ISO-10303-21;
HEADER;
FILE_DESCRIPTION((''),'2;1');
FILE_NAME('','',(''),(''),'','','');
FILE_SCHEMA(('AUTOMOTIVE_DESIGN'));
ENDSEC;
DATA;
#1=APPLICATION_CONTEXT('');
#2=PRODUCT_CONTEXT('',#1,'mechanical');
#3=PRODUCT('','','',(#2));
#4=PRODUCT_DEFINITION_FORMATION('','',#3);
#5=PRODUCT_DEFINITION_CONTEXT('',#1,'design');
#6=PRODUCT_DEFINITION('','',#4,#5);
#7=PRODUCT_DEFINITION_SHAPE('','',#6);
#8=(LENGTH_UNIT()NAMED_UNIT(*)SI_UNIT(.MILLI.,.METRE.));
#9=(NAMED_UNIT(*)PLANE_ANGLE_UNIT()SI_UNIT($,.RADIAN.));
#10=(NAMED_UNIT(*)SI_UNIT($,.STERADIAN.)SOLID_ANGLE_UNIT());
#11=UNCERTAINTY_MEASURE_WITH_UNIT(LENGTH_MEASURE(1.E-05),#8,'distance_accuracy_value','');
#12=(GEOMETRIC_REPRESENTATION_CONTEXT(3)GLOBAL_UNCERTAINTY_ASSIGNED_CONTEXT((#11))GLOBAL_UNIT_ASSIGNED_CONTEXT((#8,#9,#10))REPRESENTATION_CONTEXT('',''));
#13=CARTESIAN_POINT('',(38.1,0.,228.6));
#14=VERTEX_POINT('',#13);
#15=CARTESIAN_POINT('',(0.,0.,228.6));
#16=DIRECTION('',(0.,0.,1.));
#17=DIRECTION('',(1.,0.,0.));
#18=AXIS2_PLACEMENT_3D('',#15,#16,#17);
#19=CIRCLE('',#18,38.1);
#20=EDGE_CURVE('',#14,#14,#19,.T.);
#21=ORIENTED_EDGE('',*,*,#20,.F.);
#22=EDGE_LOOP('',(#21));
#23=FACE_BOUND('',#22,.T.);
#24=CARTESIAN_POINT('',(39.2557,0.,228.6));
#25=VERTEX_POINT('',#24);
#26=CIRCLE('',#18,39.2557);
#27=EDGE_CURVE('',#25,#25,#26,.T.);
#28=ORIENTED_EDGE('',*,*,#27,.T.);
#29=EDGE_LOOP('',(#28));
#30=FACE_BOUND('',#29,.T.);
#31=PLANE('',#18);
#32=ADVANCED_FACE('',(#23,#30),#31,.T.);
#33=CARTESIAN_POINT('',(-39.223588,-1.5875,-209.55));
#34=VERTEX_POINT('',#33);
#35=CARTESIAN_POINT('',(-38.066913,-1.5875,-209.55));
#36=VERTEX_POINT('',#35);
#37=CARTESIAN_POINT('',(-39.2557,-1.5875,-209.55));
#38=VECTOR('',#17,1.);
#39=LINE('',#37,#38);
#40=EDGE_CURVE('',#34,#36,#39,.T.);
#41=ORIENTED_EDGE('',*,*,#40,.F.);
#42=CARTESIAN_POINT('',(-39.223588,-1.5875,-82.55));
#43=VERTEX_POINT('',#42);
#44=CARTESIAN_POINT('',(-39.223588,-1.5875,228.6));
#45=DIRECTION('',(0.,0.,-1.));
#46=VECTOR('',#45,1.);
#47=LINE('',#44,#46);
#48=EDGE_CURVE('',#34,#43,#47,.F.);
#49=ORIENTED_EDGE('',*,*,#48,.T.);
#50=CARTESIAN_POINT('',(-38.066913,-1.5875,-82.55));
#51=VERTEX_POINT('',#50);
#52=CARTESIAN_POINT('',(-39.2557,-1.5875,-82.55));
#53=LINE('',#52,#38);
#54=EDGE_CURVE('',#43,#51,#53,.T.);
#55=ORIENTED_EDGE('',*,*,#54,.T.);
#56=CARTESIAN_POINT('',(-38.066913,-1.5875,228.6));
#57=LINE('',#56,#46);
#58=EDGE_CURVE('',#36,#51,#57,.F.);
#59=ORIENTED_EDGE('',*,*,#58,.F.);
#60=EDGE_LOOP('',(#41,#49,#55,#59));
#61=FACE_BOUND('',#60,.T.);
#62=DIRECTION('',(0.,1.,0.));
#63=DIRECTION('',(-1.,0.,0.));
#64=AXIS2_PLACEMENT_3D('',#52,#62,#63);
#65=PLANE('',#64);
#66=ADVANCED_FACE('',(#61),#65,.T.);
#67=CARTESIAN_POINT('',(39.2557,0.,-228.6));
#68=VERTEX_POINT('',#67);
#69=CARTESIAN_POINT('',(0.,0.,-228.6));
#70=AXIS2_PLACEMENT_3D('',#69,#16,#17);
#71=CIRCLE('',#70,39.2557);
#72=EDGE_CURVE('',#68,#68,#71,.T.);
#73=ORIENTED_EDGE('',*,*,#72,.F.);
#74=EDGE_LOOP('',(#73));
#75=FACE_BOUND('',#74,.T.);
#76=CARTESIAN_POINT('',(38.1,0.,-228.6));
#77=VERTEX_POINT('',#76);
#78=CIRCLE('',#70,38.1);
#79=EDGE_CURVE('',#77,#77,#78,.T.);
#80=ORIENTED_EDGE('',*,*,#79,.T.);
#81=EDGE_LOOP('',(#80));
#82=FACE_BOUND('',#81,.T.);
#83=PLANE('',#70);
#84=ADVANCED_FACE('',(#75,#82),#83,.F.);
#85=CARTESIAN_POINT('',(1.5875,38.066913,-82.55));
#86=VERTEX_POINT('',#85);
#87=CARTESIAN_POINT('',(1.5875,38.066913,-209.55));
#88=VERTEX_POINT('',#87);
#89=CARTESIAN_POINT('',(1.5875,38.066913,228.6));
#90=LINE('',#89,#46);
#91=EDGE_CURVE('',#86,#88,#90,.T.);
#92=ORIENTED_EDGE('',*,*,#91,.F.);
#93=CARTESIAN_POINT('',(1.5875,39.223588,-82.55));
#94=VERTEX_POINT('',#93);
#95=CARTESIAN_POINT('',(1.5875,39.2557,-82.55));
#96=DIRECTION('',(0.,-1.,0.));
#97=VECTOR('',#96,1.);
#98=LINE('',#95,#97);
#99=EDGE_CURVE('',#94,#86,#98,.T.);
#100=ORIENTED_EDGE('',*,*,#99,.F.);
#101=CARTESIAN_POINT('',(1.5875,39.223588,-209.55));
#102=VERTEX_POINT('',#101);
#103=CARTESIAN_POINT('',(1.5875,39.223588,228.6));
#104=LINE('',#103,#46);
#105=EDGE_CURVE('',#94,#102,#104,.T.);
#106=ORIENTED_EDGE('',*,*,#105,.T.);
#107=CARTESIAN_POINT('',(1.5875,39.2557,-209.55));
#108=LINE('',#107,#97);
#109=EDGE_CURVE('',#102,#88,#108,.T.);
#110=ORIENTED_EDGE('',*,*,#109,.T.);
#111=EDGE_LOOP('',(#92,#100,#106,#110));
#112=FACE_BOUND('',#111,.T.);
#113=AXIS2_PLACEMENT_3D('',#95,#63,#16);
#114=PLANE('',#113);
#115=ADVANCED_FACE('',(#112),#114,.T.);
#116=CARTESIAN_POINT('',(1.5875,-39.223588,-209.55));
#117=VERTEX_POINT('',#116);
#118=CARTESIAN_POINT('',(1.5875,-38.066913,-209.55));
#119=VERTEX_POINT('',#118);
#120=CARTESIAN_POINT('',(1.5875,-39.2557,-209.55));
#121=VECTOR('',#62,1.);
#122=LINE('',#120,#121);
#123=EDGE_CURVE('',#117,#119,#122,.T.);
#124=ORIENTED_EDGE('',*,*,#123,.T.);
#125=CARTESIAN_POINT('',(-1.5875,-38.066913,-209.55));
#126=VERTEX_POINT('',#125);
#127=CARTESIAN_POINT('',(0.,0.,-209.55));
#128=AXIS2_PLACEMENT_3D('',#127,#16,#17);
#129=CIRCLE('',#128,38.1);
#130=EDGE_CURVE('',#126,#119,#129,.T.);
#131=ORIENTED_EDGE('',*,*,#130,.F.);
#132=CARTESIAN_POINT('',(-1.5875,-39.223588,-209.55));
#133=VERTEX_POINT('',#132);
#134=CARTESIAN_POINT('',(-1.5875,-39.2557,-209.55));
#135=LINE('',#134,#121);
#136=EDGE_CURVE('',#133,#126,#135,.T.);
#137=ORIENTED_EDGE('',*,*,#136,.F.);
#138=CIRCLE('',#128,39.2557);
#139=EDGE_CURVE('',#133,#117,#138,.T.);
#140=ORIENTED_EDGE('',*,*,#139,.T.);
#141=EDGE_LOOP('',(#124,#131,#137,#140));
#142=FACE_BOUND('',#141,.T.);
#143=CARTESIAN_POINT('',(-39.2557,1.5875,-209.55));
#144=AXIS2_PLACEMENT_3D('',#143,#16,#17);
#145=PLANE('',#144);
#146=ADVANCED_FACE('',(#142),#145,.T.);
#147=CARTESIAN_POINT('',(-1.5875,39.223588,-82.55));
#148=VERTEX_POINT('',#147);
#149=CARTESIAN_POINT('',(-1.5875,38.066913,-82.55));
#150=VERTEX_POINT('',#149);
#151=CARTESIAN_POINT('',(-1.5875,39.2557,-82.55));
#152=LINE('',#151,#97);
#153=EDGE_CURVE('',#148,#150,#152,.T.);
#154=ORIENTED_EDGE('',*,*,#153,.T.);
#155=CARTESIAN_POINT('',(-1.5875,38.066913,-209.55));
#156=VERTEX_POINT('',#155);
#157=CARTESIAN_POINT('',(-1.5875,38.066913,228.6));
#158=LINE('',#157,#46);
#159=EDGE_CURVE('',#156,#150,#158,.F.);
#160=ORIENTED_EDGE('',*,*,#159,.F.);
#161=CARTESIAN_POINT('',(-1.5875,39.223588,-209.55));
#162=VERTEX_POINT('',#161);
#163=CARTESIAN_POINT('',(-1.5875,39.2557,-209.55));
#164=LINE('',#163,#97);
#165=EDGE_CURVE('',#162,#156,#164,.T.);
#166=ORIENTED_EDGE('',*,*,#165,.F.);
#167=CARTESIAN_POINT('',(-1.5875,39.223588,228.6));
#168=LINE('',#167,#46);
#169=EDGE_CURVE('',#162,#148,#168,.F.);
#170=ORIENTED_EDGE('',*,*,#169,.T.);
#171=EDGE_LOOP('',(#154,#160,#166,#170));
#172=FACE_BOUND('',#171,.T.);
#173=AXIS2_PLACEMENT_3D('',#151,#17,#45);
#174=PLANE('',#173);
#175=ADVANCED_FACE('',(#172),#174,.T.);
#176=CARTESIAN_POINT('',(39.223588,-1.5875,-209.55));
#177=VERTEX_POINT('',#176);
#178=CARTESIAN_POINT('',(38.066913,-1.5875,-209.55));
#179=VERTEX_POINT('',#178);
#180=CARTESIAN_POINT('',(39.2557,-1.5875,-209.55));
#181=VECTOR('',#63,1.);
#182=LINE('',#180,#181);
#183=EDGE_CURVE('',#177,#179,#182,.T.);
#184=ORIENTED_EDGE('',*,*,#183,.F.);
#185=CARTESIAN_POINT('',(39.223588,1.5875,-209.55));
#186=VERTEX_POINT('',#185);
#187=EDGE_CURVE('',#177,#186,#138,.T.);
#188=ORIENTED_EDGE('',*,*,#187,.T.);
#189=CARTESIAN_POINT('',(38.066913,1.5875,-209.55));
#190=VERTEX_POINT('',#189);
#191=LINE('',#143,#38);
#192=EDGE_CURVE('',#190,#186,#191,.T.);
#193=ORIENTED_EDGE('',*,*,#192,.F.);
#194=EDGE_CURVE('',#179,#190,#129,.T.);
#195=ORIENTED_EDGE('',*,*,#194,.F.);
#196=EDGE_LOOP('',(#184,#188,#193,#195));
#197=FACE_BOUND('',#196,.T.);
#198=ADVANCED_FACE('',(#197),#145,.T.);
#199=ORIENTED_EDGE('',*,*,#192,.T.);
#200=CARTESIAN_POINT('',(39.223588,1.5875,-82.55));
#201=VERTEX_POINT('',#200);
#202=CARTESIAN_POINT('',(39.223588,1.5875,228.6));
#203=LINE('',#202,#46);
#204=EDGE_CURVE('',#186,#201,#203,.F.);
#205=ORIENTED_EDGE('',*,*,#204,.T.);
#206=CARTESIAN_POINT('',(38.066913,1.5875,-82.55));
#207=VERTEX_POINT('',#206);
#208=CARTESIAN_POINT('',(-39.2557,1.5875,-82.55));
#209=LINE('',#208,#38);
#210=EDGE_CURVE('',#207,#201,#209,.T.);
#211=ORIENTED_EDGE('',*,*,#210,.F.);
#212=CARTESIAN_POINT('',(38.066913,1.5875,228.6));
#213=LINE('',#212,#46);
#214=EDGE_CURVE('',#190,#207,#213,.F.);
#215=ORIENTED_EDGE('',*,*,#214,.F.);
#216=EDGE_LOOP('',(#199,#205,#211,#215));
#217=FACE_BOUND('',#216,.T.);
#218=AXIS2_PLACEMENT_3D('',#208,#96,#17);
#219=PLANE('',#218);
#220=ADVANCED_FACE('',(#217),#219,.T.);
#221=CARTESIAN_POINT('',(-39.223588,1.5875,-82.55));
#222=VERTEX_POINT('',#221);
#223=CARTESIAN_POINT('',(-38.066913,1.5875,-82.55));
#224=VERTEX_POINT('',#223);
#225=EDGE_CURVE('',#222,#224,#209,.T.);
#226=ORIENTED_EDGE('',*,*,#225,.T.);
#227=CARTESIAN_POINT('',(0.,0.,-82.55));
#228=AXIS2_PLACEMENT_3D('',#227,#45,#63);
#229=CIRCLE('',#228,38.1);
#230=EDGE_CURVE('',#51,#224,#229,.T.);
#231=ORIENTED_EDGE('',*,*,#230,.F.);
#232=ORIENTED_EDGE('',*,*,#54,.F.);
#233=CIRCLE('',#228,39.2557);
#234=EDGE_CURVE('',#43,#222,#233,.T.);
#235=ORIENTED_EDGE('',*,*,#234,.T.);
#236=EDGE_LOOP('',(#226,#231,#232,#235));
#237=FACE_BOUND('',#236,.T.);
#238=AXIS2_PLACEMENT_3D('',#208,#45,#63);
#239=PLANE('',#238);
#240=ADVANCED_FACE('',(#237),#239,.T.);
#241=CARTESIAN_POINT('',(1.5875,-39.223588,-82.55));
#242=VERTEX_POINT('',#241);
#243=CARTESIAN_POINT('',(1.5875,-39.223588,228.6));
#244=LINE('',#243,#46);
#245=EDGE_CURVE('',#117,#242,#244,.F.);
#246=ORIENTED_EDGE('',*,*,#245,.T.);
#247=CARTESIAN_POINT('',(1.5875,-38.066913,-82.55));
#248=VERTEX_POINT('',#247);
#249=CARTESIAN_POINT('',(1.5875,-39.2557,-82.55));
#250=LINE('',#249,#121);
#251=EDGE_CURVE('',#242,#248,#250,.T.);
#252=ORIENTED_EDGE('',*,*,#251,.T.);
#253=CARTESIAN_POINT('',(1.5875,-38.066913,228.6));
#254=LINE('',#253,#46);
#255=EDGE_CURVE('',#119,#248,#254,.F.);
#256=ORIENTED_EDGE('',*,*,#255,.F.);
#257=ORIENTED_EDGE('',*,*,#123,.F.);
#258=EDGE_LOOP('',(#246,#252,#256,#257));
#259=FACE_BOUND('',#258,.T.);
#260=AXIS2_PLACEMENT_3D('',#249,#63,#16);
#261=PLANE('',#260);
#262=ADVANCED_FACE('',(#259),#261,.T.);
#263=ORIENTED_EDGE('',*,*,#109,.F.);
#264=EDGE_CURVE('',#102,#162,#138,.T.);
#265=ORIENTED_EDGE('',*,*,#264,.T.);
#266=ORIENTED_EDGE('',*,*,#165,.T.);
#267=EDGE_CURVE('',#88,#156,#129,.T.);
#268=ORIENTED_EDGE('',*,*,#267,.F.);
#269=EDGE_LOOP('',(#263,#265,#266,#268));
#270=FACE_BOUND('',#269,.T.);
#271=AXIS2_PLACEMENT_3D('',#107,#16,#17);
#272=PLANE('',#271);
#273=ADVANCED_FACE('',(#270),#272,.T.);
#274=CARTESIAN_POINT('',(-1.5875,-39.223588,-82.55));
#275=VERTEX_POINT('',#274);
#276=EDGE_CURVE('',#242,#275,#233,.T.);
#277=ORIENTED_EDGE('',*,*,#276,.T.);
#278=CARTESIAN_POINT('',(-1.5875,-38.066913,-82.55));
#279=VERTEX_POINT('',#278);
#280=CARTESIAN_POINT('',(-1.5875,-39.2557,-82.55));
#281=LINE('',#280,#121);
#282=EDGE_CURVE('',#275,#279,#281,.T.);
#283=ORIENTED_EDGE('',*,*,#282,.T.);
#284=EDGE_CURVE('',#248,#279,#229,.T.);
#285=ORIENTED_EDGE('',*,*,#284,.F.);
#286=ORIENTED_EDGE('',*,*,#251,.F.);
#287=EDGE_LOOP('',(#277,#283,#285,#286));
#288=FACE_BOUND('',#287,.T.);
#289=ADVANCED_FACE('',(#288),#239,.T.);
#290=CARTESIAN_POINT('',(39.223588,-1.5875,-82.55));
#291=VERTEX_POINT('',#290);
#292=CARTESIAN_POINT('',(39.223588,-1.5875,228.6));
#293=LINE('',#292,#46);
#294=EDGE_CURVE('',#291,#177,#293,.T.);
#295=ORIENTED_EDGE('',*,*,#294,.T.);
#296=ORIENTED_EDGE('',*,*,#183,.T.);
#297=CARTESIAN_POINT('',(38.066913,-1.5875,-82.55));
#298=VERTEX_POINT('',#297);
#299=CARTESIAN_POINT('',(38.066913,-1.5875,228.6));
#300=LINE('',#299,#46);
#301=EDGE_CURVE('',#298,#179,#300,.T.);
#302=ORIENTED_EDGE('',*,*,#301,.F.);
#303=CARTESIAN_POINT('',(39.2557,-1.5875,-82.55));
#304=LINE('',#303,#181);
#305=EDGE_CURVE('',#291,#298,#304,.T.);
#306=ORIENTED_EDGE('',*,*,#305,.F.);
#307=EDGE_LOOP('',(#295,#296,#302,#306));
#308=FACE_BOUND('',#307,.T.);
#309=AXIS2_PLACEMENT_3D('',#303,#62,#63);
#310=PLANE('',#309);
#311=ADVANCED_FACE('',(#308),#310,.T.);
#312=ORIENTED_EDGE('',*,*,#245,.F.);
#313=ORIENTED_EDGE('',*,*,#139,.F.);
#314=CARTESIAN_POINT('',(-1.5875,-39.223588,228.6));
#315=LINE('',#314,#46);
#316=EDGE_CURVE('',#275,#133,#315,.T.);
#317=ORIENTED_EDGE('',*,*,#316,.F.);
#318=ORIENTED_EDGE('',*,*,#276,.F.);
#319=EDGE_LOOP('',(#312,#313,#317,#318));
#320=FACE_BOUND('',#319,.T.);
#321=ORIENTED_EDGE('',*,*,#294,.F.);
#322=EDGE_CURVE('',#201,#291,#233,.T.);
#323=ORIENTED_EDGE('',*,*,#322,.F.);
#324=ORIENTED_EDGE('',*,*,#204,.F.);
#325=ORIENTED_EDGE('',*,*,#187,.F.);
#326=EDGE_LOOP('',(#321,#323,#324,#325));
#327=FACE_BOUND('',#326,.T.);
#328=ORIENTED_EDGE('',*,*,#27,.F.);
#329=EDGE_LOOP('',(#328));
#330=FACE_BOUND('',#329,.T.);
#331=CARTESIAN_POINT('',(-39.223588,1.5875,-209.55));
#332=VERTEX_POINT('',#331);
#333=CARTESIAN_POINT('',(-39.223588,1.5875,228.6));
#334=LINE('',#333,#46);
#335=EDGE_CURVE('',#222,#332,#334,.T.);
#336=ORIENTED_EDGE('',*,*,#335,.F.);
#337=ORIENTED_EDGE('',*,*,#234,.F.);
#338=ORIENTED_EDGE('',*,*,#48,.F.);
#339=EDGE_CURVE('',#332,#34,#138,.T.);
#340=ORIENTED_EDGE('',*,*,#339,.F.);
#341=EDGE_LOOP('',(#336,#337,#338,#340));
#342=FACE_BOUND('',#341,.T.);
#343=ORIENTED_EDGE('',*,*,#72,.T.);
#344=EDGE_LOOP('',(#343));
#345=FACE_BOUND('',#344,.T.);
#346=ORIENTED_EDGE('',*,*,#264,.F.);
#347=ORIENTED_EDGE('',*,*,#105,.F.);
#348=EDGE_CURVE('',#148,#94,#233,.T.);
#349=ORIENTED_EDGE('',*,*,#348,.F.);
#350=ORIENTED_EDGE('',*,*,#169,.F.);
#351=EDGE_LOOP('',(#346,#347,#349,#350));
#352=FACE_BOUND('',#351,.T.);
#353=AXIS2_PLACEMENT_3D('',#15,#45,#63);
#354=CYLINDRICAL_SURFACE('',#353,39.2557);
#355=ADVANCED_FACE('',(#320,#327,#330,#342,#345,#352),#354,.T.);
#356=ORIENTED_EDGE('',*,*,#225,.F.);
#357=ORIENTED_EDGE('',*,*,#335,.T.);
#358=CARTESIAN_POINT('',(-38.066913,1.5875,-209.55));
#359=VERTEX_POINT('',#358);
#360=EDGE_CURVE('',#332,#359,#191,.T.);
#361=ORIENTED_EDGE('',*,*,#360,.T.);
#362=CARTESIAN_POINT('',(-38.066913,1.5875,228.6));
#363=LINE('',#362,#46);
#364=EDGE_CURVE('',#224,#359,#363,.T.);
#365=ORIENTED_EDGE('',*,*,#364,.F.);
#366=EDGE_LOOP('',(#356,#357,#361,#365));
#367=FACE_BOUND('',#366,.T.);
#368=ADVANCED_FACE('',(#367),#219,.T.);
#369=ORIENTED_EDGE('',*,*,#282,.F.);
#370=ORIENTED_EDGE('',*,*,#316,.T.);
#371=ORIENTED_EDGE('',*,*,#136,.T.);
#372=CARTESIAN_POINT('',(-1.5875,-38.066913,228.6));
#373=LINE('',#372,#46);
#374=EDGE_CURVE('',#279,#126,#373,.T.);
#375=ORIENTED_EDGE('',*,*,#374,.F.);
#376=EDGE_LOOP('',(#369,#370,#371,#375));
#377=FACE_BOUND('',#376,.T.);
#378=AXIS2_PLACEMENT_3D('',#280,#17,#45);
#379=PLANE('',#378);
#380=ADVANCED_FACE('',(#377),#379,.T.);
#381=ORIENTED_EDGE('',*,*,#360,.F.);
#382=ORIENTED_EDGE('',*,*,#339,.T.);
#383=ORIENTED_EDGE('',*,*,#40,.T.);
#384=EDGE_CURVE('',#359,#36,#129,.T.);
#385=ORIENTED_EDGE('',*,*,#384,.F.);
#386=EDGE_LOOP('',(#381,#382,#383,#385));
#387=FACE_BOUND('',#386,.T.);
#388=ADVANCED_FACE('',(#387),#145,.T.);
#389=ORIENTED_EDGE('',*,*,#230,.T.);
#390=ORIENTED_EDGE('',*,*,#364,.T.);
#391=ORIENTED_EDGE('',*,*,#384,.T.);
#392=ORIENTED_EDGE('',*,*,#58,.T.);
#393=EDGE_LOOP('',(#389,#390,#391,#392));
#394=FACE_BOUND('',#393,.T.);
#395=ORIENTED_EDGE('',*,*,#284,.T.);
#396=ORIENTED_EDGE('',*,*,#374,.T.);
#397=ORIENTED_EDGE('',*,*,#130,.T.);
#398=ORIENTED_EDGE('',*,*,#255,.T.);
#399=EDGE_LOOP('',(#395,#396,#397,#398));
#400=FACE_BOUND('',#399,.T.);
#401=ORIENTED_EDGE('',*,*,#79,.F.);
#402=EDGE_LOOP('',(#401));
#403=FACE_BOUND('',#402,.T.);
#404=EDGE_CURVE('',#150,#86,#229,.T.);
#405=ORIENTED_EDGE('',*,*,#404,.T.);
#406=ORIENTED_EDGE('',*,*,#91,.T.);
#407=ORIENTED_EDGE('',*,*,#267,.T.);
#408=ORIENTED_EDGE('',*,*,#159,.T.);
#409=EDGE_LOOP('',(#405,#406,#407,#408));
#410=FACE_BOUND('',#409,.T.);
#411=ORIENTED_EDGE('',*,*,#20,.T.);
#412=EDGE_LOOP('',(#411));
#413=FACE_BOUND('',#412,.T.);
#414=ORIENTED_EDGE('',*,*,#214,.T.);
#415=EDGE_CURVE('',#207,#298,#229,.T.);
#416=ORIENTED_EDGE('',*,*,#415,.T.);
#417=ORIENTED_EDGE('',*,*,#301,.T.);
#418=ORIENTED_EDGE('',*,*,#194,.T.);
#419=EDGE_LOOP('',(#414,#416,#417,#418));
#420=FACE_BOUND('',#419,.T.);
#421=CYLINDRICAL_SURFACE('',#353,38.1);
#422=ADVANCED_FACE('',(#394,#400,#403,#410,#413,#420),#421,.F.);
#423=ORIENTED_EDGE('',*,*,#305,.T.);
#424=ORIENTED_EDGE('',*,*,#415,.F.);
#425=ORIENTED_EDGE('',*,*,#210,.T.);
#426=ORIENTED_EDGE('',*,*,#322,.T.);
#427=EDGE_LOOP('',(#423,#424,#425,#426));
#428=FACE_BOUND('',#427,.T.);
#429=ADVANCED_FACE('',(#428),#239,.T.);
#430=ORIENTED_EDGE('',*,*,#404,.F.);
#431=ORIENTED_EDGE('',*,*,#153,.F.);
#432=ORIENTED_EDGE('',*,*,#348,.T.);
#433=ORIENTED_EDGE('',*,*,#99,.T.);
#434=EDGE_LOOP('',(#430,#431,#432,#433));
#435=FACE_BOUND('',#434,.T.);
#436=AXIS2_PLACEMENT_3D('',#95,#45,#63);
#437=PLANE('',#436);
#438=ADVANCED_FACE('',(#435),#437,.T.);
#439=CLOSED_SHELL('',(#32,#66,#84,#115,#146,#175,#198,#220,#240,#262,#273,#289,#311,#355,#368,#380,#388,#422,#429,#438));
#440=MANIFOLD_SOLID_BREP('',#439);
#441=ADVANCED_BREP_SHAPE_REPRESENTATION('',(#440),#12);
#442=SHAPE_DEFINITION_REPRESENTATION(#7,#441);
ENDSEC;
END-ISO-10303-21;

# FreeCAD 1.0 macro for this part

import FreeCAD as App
import Part
import Sketcher

V = App.Vector
Q = App.Units.Quantity

doc = App.newDocument("Part")
params = doc.addObject("Spreadsheet::Sheet", "Params")
for row, (alias, value) in enumerate([
    ("sketch1_diameter", "3 in"),
    ("sketch1_diameter2", "3.091 in"),
    ("pad1_length", "18 in"),
    ("sketch2_height", "5 in"),
    ("sketch2_width", "0.125 in"),
], start=1):
    params.set(f"A{row}", alias)
    params.set(f"B{row}", "=" + value)
    params.setAlias(f"B{row}", alias)

body = doc.addObject("PartDesign::Body", "Body")

# Sketch on XY plane
sketch1 = doc.addObject("Sketcher::SketchObject", "Sketch")
body.addObject(sketch1)
sketch1.AttachmentSupport = (doc.XY_Plane, [""])
sketch1.MapMode = "FlatFace"
sketch1.addGeometry([
    Part.Circle(V(0, 0, 0), V(0, 0, 1), 39),
    Part.Circle(V(0, 0, 0), V(0, 0, 1), 38),
], False)
sketch1.addConstraint([
    Sketcher.Constraint("Coincident", 0, 3, -1, 1),
    Sketcher.Constraint("Coincident", 1, 3, -1, 1),
    Sketcher.Constraint("Diameter", 1, Q("3 in")),
    Sketcher.Constraint("Diameter", 0, Q("3.091 in")),
])
sketch1.setExpression("Constraints[2]", "Params.sketch1_diameter")
sketch1.setExpression("Constraints[3]", "Params.sketch1_diameter2")
pad1 = doc.addObject("PartDesign::Pad", "Pad")
body.addObject(pad1)
pad1.Profile = sketch1
pad1.setExpression("Length", "Params.pad1_length")
pad1.Midplane = True

# Sketch on XZ plane
sketch2 = doc.addObject("Sketcher::SketchObject", "Sketch001")
body.addObject(sketch2)
sketch2.AttachmentSupport = (doc.XZ_Plane, [""])
sketch2.MapMode = "FlatFace"
sketch2.addGeometry([
    Part.LineSegment(V(-1.6, -209.6, 0), V(-1.6, -82.5, 0)),
    Part.LineSegment(V(-1.6, -82.5, 0), V(1.6, -82.5, 0)),
    Part.LineSegment(V(1.6, -82.5, 0), V(1.6, -209.6, 0)),
    Part.LineSegment(V(1.6, -209.6, 0), V(-1.6, -209.6, 0)),
], False)
sketch2.addConstraint([
    Sketcher.Constraint("Coincident", 0, 2, 1, 1),
    Sketcher.Constraint("Coincident", 1, 2, 2, 1),
    Sketcher.Constraint("Coincident", 2, 2, 3, 1),
    Sketcher.Constraint("Coincident", 3, 2, 0, 1),
    Sketcher.Constraint("Vertical", 0),
    Sketcher.Constraint("Horizontal", 1),
    Sketcher.Constraint("Vertical", 2),
    Sketcher.Constraint("Horizontal", 3),
    Sketcher.Constraint("DistanceY", 0, 1, 0, 2, Q("5 in")),
    Sketcher.Constraint("DistanceX", 1, 1, 1, 2, Q("0.125 in")),
    Sketcher.Constraint("DistanceY", 0, 2, -1, 1, Q("3.25 in")),
    Sketcher.Constraint("DistanceX", 0, 2, -1, 1, Q("0.0625 in")),
])
sketch2.setExpression("Constraints[8]", "Params.sketch2_height")
sketch2.setExpression("Constraints[9]", "Params.sketch2_width")
pocket1 = doc.addObject("PartDesign::Pocket", "Pocket")
body.addObject(pocket1)
pocket1.Profile = sketch2
pocket1.Type = "ThroughAll"
doc.recompute()

polarpattern = doc.addObject("PartDesign::PolarPattern", "PolarPattern")
body.addObject(polarpattern)
polarpattern.Originals = [pocket1]
polarpattern.Axis = (doc.Z_Axis, [""])
polarpattern.Angle = 360
polarpattern.Occurrences = 4
body.Tip = polarpattern

doc.recompute()
